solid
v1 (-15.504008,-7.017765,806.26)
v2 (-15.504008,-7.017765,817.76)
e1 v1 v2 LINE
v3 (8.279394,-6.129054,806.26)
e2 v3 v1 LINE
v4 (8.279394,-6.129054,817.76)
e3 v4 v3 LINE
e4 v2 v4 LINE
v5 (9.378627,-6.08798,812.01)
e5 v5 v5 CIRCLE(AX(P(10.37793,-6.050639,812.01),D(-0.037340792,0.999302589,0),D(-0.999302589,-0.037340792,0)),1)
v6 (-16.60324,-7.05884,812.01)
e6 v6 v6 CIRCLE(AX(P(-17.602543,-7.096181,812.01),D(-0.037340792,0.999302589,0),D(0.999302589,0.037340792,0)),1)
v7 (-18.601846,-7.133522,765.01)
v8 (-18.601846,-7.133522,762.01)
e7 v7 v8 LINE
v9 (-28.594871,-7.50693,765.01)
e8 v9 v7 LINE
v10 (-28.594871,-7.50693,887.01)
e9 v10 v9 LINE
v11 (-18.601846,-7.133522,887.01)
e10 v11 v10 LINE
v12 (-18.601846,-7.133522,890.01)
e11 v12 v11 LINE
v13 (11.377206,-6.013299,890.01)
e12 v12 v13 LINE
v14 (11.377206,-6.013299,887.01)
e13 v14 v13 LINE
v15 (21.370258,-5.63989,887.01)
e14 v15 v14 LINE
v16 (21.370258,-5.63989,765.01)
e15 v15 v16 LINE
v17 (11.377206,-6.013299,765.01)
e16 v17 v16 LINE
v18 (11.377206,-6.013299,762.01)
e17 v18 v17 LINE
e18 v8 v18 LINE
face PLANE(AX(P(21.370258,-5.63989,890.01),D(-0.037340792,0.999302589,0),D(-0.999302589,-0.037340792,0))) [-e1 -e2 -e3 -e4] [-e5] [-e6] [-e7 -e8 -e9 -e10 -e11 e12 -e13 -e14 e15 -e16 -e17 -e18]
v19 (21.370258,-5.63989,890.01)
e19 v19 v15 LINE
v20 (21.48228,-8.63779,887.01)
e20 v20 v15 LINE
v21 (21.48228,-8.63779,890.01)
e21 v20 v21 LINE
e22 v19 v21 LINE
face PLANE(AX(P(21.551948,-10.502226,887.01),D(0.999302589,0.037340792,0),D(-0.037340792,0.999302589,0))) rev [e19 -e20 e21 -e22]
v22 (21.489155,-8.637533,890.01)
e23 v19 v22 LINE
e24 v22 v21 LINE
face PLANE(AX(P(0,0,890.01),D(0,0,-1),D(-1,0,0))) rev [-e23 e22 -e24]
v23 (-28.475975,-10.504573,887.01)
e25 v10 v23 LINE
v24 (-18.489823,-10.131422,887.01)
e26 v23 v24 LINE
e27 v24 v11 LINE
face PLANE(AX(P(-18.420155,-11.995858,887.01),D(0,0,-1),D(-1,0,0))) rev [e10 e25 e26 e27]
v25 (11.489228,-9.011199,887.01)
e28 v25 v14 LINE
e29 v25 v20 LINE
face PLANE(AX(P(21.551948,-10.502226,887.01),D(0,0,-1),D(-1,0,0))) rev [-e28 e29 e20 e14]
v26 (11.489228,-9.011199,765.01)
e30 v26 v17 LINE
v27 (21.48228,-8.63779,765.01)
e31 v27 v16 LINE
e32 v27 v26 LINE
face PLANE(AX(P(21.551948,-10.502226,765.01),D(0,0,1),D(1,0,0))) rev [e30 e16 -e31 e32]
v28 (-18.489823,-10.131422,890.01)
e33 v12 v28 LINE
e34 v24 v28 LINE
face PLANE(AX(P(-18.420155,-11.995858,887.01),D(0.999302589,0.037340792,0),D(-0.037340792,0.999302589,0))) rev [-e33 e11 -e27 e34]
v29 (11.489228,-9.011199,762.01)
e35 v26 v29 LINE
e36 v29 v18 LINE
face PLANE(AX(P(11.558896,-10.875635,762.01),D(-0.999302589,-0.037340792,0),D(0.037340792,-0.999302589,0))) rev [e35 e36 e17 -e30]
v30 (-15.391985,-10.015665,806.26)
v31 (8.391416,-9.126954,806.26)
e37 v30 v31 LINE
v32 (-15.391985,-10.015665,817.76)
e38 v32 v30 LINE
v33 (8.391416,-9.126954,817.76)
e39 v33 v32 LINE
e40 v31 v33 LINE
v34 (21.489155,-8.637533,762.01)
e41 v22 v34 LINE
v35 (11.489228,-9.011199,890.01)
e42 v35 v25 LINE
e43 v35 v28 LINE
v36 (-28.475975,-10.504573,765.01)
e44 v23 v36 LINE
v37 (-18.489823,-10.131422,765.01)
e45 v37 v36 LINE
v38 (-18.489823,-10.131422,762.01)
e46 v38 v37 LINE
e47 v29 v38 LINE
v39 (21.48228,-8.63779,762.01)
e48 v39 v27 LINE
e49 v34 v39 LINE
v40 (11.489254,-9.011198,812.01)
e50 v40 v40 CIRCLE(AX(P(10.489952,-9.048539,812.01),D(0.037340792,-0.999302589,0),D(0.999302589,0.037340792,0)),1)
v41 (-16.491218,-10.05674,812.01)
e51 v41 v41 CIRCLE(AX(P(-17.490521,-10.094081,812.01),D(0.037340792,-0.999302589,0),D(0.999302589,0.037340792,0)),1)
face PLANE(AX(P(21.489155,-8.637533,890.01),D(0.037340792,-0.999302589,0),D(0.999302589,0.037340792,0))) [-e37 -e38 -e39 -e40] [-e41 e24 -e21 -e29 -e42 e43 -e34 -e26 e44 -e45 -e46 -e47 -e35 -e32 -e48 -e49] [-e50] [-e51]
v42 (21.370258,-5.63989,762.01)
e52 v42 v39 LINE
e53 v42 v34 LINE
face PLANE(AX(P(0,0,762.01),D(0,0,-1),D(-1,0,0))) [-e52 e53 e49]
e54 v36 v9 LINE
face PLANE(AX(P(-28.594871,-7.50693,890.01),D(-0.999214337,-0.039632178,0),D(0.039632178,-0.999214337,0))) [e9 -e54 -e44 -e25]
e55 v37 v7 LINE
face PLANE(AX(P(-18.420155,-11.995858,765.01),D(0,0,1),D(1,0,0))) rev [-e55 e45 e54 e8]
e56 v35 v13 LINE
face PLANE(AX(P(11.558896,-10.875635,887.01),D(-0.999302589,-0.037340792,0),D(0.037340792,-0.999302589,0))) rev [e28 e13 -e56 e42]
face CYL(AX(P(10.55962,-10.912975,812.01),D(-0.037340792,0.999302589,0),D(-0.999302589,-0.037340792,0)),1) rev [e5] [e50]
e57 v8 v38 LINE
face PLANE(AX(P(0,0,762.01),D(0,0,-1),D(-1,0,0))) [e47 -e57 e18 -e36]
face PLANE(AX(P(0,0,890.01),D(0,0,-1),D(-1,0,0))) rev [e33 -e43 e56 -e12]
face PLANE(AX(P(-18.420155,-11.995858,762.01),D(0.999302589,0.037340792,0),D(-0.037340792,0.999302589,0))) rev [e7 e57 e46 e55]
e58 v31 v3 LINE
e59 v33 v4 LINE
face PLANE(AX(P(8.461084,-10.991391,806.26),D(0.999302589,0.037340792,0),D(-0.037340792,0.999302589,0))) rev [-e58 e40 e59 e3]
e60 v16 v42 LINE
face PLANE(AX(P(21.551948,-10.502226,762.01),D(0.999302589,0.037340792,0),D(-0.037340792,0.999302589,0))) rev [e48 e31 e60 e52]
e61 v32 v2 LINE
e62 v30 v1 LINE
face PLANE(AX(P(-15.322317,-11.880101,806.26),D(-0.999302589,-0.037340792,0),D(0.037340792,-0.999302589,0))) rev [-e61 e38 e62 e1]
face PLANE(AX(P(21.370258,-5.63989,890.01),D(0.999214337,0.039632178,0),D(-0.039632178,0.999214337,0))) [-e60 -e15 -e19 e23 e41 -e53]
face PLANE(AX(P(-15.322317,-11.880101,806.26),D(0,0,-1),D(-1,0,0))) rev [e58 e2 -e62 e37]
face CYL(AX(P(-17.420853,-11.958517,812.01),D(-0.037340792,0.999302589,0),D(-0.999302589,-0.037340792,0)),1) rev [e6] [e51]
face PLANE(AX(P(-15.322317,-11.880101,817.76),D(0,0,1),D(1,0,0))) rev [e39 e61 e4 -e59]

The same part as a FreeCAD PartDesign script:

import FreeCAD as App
import Part
import Sketcher
Q = App.Units.Quantity


def add_polygon(sketch, points):
    """Adds a closed chain of lines whose ends are joined by coincident constraints."""
    first, n = sketch.GeometryCount, len(points)
    for a, b in zip(points, points[1:] + points[:1]):
        sketch.addGeometry(Part.LineSegment(App.Vector(*a, 0), App.Vector(*b, 0)), False)
    for i in range(n):
        sketch.addConstraint(Sketcher.Constraint("Coincident", first + i, 2, first + (i + 1) % n, 1))

doc = App.newDocument("Part")
body = doc.addObject("PartDesign::Body", "Body")

sketch1 = doc.addObject("Sketcher::SketchObject", "Sketch")
body.addObject(sketch1)
sketch1.AttachmentSupport = (doc.XY_Plane, [""])
sketch1.MapMode = "FlatFace"
sketch1.AttachmentOffset = App.Placement(App.Vector(0, 0, 762.01), App.Rotation())
add_polygon(sketch1, [(-28.6, -7.5), (21.4, -5.6), (21.5, -8.6), (-28.5, -10.5)])
sketch1.addConstraint(Sketcher.Constraint("Parallel", 0, 2))
sketch1.addConstraint(Sketcher.Constraint("Parallel", 1, 3))
sketch1.addConstraint(Sketcher.Constraint("Distance", 0, Q("50 mm")))
sketch1.addConstraint(Sketcher.Constraint("Distance", 1, Q("3 mm")))
sketch1.addConstraint(Sketcher.Constraint("DistanceX", -1, 1, 0, 2, Q("21.370258 mm")))
sketch1.addConstraint(Sketcher.Constraint("DistanceY", 0, 2, -1, 1, Q("5.63989 mm")))
sketch1.addConstraint(Sketcher.Constraint("DistanceX", 3, 2, -1, 1, Q("28.594871 mm")))
sketch1.addConstraint(Sketcher.Constraint("DistanceX", -1, 1, 1, 2, Q("21.489155 mm")))
pad1 = doc.addObject("PartDesign::Pad", "Pad")
body.addObject(pad1)
pad1.Profile = sketch1
pad1.Length = 128

sketch2 = doc.addObject("Sketcher::SketchObject", "Sketch001")
body.addObject(sketch2)
sketch2.Placement = App.Placement(App.Vector(0.240248, -6.429452, 0), App.Rotation(App.Vector(0.999302589, 0.037340792, 0), App.Vector(0, 0, -0.999999999), App.Vector(-0.037340792, 0.999302589, 0), "ZXY"))
add_polygon(sketch2, [(-28.9, -762), (-28.9, -765), (-18.9, -765), (-18.9, -762)])
add_polygon(sketch2, [(11.1, -762), (11.1, -765), (21.1, -765), (21.1, -762)])
add_polygon(sketch2, [(-28.9, -887), (-28.9, -890), (-18.9, -890), (-18.9, -887)])
add_polygon(sketch2, [(11.1, -887), (11.1, -890), (21.1, -890), (21.1, -887)])
sketch2.addConstraint(Sketcher.Constraint("Vertical", 0))
sketch2.addConstraint(Sketcher.Constraint("Horizontal", 1))
sketch2.addConstraint(Sketcher.Constraint("Vertical", 2))
sketch2.addConstraint(Sketcher.Constraint("Horizontal", 3))
sketch2.addConstraint(Sketcher.Constraint("Vertical", 4))
sketch2.addConstraint(Sketcher.Constraint("Horizontal", 5))
sketch2.addConstraint(Sketcher.Constraint("Vertical", 6))
sketch2.addConstraint(Sketcher.Constraint("Horizontal", 7))
sketch2.addConstraint(Sketcher.Constraint("Vertical", 8))
sketch2.addConstraint(Sketcher.Constraint("Horizontal", 9))
sketch2.addConstraint(Sketcher.Constraint("Vertical", 10))
sketch2.addConstraint(Sketcher.Constraint("Horizontal", 11))
sketch2.addConstraint(Sketcher.Constraint("Vertical", 12))
sketch2.addConstraint(Sketcher.Constraint("Horizontal", 13))
sketch2.addConstraint(Sketcher.Constraint("Vertical", 14))
sketch2.addConstraint(Sketcher.Constraint("Horizontal", 15))
sketch2.addConstraint(Sketcher.Constraint("Horizontal", 1, 2, 4, 2))
sketch2.addConstraint(Sketcher.Constraint("Horizontal", 3, 2, 6, 2))
sketch2.addConstraint(Sketcher.Constraint("Horizontal", 9, 2, 12, 2))
sketch2.addConstraint(Sketcher.Constraint("Horizontal", 11, 2, 14, 2))
sketch2.addConstraint(Sketcher.Constraint("Vertical", 3, 2, 8, 2))
sketch2.addConstraint(Sketcher.Constraint("Vertical", 2, 2, 9, 2))
sketch2.addConstraint(Sketcher.Constraint("Vertical", 7, 2, 12, 2))
sketch2.addConstraint(Sketcher.Constraint("Vertical", 6, 2, 13, 2))
sketch2.addConstraint(Sketcher.Constraint("Equal", 3, 5))
sketch2.addConstraint(Sketcher.Constraint("Equal", 6, 8))
sketch2.addConstraint(Sketcher.Constraint("DistanceY", 0, 2, 0, 1, Q("3 mm")))
sketch2.addConstraint(Sketcher.Constraint("DistanceX", 0, 2, 4, 2, Q("40 mm")))
sketch2.addConstraint(Sketcher.Constraint("DistanceY", 8, 2, 0, 2, Q("125 mm")))
sketch2.addConstraint(Sketcher.Constraint("DistanceY", 0, 2, -1, 1, Q("765.009999 mm")))
sketch2.addConstraint(Sketcher.Constraint("DistanceX", 1, 1, 1, 2, Q("10.000026 mm")))
sketch2.addConstraint(Sketcher.Constraint("DistanceX", 0, 2, -1, 1, Q("28.85527 mm")))
pocket1 = doc.addObject("PartDesign::Pocket", "Pocket")
body.addObject(pocket1)
pocket1.Profile = sketch2
pocket1.Type = "ThroughAll"

sketch3 = doc.addObject("Sketcher::SketchObject", "Sketch002")
body.addObject(sketch3)
sketch3.Placement = App.Placement(App.Vector(0.240248, -6.429452, 0), App.Rotation(App.Vector(0.999302589, 0.037340792, 0), App.Vector(0, 0, -0.999999999), App.Vector(-0.037340792, 0.999302589, 0), "ZXY"))
sketch3.addGeometry(Part.Circle(App.Vector(10.1, -812, 0), App.Vector(0, 0, 1), 1), False)
sketch3.addGeometry(Part.Circle(App.Vector(-17.9, -812, 0), App.Vector(0, 0, 1), 1), False)
add_polygon(sketch3, [(-15.8, -806.3), (-15.8, -817.8), (8, -817.8), (8, -806.3)])
sketch3.addConstraint(Sketcher.Constraint("Vertical", 2))
sketch3.addConstraint(Sketcher.Constraint("Horizontal", 3))
sketch3.addConstraint(Sketcher.Constraint("Vertical", 4))
sketch3.addConstraint(Sketcher.Constraint("Horizontal", 5))
sketch3.addConstraint(Sketcher.Constraint("Equal", 0, 1))
sketch3.addConstraint(Sketcher.Constraint("Horizontal", 0, 3, 1, 3))
sketch3.addConstraint(Sketcher.Constraint("Diameter", 0, Q("2 mm")))
sketch3.addConstraint(Sketcher.Constraint("DistanceX", 3, 1, 3, 2, Q("23.8 mm")))
sketch3.addConstraint(Sketcher.Constraint("DistanceY", 2, 2, 2, 1, Q("11.5 mm")))
sketch3.addConstraint(Sketcher.Constraint("DistanceX", 1, 3, 0, 3, Q("28 mm")))
sketch3.addConstraint(Sketcher.Constraint("DistanceX", 1, 3, 2, 2, Q("2.1 mm")))
sketch3.addConstraint(Sketcher.Constraint("DistanceY", 0, 3, -1, 1, Q("812.009999 mm")))
sketch3.addConstraint(Sketcher.Constraint("DistanceY", 2, 2, -1, 1, Q("817.759999 mm")))
sketch3.addConstraint(Sketcher.Constraint("DistanceX", -1, 1, 0, 3, Q("10.144756 mm")))
pocket2 = doc.addObject("PartDesign::Pocket", "Pocket001")
body.addObject(pocket2)
pocket2.Profile = sketch3
pocket2.Type = "ThroughAll"

doc.recompute()
